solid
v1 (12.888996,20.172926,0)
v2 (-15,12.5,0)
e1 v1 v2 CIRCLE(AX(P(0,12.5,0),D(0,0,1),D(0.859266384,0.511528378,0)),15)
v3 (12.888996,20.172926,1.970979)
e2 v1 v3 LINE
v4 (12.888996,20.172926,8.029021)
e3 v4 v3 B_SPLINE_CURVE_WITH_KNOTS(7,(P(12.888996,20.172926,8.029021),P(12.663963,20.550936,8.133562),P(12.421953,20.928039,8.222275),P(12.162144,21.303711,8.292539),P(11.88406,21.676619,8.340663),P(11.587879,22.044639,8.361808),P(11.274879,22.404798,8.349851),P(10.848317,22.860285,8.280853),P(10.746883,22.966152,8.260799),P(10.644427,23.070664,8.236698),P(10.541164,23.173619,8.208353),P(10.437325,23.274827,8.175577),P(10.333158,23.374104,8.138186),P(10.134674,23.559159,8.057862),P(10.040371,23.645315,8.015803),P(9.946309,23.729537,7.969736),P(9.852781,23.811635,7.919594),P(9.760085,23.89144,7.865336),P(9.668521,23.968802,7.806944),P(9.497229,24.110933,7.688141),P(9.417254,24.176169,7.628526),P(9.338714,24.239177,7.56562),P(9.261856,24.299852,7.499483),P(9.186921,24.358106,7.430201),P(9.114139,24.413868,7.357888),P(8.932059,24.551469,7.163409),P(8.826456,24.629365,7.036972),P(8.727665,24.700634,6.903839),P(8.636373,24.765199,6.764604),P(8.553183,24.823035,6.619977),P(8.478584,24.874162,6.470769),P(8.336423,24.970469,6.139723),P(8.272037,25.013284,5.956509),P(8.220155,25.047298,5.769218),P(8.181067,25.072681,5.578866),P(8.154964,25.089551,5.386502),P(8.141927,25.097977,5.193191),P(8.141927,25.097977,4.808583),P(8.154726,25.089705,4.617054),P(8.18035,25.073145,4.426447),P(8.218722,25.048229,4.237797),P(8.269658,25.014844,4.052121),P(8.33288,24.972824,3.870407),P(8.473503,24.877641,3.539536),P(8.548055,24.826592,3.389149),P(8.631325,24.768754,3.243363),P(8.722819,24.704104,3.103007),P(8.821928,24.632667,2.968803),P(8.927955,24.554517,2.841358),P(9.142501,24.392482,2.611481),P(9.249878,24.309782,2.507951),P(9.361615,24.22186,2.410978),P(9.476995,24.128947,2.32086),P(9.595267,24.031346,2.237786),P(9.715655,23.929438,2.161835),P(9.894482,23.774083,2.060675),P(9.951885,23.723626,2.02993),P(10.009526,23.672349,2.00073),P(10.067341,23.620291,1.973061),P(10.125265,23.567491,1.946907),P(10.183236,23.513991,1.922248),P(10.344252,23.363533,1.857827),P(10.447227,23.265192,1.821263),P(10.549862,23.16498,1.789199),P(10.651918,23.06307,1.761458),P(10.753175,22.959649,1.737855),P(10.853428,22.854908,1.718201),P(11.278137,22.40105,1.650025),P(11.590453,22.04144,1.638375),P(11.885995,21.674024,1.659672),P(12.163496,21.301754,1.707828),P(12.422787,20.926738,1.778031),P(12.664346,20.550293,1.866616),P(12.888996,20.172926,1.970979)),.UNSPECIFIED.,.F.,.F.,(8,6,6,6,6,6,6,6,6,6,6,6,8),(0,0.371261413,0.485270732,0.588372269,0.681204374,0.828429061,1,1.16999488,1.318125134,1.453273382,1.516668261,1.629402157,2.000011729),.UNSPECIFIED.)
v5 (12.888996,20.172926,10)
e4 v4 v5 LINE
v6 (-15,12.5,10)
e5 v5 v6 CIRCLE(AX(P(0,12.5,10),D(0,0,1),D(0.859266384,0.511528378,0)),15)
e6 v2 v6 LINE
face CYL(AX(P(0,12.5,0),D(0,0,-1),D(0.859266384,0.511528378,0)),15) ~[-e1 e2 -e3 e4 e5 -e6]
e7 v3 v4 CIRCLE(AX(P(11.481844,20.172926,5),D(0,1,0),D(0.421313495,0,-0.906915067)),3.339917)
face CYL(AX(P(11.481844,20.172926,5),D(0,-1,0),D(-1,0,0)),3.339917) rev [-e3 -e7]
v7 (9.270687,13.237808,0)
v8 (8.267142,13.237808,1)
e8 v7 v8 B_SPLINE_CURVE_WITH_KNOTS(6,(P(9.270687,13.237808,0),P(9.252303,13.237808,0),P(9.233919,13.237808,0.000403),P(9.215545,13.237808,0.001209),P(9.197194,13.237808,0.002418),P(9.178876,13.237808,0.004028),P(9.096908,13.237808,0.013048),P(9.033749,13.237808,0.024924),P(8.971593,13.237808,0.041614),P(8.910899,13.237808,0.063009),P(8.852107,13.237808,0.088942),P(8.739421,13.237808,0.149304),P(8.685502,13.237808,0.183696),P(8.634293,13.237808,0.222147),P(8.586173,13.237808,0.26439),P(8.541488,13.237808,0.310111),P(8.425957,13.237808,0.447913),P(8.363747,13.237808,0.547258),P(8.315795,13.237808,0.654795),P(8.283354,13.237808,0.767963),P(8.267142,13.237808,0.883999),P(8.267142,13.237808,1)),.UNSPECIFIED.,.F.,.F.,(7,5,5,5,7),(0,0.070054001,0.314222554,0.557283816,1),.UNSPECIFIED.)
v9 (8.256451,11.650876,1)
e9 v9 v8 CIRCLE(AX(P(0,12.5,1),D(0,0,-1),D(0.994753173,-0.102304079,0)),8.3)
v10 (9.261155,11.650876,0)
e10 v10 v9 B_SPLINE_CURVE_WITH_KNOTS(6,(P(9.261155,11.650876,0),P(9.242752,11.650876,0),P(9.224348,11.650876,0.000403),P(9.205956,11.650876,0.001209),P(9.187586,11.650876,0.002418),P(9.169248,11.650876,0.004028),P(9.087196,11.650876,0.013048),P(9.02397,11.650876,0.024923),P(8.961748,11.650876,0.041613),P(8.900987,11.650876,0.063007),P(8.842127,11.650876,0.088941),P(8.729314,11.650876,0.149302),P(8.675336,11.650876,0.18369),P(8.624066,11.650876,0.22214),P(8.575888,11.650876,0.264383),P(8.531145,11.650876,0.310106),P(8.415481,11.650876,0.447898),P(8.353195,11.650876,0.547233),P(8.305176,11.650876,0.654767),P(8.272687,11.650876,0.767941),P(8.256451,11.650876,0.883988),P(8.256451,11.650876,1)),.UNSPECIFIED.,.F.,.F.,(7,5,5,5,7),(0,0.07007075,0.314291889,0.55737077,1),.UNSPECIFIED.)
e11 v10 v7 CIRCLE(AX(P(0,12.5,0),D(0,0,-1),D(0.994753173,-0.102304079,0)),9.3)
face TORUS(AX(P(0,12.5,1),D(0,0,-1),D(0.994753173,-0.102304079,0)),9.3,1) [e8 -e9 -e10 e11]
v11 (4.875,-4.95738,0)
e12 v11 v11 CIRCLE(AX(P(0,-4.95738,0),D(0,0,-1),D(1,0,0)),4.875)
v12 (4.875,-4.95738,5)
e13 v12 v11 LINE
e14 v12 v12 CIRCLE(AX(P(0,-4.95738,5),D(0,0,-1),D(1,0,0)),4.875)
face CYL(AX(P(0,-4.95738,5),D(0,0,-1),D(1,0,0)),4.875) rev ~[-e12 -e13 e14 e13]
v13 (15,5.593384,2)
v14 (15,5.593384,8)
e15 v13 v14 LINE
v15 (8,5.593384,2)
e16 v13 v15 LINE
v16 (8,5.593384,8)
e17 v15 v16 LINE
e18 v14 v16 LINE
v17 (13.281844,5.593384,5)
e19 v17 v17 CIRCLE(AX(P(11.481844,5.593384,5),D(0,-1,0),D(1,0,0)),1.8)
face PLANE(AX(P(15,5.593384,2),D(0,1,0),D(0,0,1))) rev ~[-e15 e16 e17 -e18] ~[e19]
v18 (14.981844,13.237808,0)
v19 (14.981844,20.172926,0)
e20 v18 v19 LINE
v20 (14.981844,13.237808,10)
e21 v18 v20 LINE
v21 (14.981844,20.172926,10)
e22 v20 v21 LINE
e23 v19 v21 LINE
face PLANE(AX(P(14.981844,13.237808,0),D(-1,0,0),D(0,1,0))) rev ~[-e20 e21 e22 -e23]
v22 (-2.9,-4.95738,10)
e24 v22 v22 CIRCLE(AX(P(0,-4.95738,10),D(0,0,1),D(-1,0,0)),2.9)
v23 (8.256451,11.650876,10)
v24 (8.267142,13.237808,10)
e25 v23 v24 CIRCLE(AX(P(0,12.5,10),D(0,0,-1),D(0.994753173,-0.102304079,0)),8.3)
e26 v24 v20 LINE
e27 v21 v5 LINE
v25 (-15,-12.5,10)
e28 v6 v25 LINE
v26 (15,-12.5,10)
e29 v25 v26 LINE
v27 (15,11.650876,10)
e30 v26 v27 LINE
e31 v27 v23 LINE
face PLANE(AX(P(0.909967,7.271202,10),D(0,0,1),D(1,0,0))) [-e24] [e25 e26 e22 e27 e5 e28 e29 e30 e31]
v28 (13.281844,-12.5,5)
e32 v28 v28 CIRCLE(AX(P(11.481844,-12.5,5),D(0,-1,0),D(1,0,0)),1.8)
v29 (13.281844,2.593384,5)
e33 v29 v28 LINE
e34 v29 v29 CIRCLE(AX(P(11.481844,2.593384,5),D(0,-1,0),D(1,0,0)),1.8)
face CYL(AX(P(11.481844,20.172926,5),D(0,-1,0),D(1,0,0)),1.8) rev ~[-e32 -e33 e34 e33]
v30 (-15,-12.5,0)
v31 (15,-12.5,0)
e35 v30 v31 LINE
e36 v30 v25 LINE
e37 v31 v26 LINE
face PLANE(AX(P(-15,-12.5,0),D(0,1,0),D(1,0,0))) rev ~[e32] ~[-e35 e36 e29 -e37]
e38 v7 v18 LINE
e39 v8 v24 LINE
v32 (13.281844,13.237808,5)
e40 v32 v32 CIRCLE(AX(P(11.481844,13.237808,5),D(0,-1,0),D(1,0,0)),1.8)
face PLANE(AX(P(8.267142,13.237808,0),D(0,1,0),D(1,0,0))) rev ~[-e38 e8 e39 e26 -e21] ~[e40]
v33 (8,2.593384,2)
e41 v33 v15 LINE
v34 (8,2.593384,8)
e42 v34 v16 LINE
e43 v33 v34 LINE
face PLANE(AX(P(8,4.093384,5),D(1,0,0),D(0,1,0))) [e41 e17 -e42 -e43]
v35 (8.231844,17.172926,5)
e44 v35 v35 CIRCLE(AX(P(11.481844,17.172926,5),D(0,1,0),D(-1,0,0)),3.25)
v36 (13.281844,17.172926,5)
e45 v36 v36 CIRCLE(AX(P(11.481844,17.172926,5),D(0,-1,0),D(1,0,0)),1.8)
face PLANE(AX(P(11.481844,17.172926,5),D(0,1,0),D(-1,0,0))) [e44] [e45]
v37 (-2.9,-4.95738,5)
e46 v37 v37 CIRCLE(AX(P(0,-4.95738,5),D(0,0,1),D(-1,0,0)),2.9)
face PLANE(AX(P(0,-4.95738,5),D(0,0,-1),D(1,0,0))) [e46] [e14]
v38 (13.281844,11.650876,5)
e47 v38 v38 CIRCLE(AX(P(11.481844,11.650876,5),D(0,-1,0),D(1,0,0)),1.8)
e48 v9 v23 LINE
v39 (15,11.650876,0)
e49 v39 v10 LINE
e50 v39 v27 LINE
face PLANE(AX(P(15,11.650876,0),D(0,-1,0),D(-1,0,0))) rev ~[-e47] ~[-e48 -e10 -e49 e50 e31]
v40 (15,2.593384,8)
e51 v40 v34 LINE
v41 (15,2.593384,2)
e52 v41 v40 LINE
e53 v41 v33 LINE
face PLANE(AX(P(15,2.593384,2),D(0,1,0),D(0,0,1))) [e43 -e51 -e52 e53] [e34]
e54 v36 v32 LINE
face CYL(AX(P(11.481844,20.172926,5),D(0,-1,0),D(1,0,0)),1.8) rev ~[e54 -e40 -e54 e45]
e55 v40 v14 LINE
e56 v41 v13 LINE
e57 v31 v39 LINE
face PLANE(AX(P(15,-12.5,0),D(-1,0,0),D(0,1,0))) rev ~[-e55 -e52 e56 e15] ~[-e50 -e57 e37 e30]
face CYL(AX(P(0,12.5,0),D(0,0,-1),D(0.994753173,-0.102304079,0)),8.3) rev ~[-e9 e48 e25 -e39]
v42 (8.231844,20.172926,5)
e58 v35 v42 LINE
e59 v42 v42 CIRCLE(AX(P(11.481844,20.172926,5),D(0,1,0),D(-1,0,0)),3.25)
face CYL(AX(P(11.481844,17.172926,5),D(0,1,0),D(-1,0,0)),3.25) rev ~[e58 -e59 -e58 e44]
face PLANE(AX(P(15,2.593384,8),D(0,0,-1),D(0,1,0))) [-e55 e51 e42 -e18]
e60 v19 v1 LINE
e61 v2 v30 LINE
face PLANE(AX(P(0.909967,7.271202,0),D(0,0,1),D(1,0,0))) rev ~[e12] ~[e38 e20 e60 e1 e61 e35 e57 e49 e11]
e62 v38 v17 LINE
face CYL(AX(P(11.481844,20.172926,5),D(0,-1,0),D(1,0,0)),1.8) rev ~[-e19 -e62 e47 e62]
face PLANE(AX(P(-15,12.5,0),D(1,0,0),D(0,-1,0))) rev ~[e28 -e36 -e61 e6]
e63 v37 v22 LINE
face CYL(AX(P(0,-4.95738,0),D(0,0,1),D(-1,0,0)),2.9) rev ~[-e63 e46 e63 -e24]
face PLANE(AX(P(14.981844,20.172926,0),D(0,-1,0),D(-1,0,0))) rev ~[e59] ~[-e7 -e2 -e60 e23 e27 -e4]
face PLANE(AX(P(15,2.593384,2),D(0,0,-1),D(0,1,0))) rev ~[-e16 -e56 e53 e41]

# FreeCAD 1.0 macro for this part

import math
import FreeCAD as App
import Part
import Sketcher
Q = App.Units.Quantity


def edges_at(feature, points):
    """Names of the edges that pass closest to the given points."""
    edges = feature.Shape.Edges
    near = lambda p: min(range(len(edges)), key=lambda i: edges[i].distToShape(Part.Vertex(*p))[0])
    return sorted({f"Edge{near(p) + 1}" for p in points})

doc = App.newDocument("Part")
body = doc.addObject("PartDesign::Body", "Body")

# Sketch on XY plane
sketch1 = body.newObject("Sketcher::SketchObject", "Sketch")
sketch1.AttachmentSupport = (doc.getObject("XY_Plane"), [""])
sketch1.MapMode = "FlatFace"
sketch1.addGeometry(Part.LineSegment(App.Vector(-15, 12.5, 0), App.Vector(-15, -12.5, 0)), False)
sketch1.addGeometry(Part.LineSegment(App.Vector(-15, -12.5, 0), App.Vector(15, -12.5, 0)), False)
sketch1.addGeometry(Part.LineSegment(App.Vector(15, -12.5, 0), App.Vector(15, 11.7, 0)), False)
sketch1.addGeometry(Part.LineSegment(App.Vector(15, 11.7, 0), App.Vector(8.3, 11.7, 0)), False)
sketch1.addGeometry(Part.ArcOfCircle(Part.Circle(App.Vector(0, 12.5, 0), App.Vector(0, 0, 1), 8.3), math.radians(5), math.radians(354)), False)
sketch1.addGeometry(Part.LineSegment(App.Vector(8.3, 13.2, 0), App.Vector(15, 13.2, 0)), False)
sketch1.addGeometry(Part.LineSegment(App.Vector(15, 13.2, 0), App.Vector(15, 20.2, 0)), False)
sketch1.addGeometry(Part.LineSegment(App.Vector(15, 20.2, 0), App.Vector(12.9, 20.2, 0)), False)
sketch1.addGeometry(Part.ArcOfCircle(Part.Circle(App.Vector(0, 12.5, 0), App.Vector(0, 0, 1), 15), math.radians(31), math.radians(180)), False)
sketch1.addConstraint(Sketcher.Constraint("Coincident", 0, 2, 1, 1))
sketch1.addConstraint(Sketcher.Constraint("Coincident", 1, 2, 2, 1))
sketch1.addConstraint(Sketcher.Constraint("Coincident", 2, 2, 3, 1))
sketch1.addConstraint(Sketcher.Constraint("Coincident", 3, 2, 4, 2))
sketch1.addConstraint(Sketcher.Constraint("Coincident", 4, 1, 5, 1))
sketch1.addConstraint(Sketcher.Constraint("Coincident", 5, 2, 6, 1))
sketch1.addConstraint(Sketcher.Constraint("Coincident", 6, 2, 7, 1))
sketch1.addConstraint(Sketcher.Constraint("Coincident", 7, 2, 8, 1))
sketch1.addConstraint(Sketcher.Constraint("Tangent", 8, 2, 0, 1))
sketch1.addConstraint(Sketcher.Constraint("Vertical", 0))
sketch1.addConstraint(Sketcher.Constraint("Horizontal", 1))
sketch1.addConstraint(Sketcher.Constraint("Vertical", 2))
sketch1.addConstraint(Sketcher.Constraint("Horizontal", 3))
sketch1.addConstraint(Sketcher.Constraint("Horizontal", 5))
sketch1.addConstraint(Sketcher.Constraint("Vertical", 6))
sketch1.addConstraint(Sketcher.Constraint("Horizontal", 7))
sketch1.addConstraint(Sketcher.Constraint("Coincident", 8, 3, 4, 3))
sketch1.addConstraint(Sketcher.Constraint("Symmetric", 1, 2, 8, 2, -1, 1))
sketch1.addConstraint(Sketcher.Constraint("PointOnObject", 4, 3, -2))
sketch1.addConstraint(Sketcher.Constraint("Radius", 8, Q("15 mm")))
sketch1.addConstraint(Sketcher.Constraint("Radius", 4, Q("8.3 mm")))
sketch1.addConstraint(Sketcher.Constraint("DistanceY", 0, 2, 0, 1, Q("25 mm")))
sketch1.addConstraint(Sketcher.Constraint("DistanceX", 5, 1, 5, 2, Q("6.714702 mm")))
sketch1.addConstraint(Sketcher.Constraint("DistanceX", 3, 2, 3, 1, Q("6.743549 mm")))
sketch1.addConstraint(Sketcher.Constraint("DistanceX", 7, 2, 7, 1, Q("2.092848 mm")))
sketch1.addConstraint(Sketcher.Constraint("DistanceY", 6, 1, 6, 2, Q("6.935118 mm")))
pad1 = body.newObject("PartDesign::Pad", "Pad")
pad1.Profile = sketch1
pad1.Length = 10

# Sketch on XY plane
sketch2 = body.newObject("Sketcher::SketchObject", "Sketch001")
sketch2.AttachmentSupport = (doc.getObject("XY_Plane"), [""])
sketch2.MapMode = "FlatFace"
sketch2.addGeometry(Part.Circle(App.Vector(0, -5, 0), App.Vector(0, 0, 1), 2.9), False)
sketch2.addConstraint(Sketcher.Constraint("PointOnObject", 0, 3, -2))
sketch2.addConstraint(Sketcher.Constraint("Diameter", 0, Q("5.8 mm")))
sketch2.addConstraint(Sketcher.Constraint("DistanceY", 0, 3, -1, 1, Q("4.95738 mm")))
doc.recompute()
hole = body.newObject("PartDesign::Hole", "Hole")
hole.Profile = sketch2
hole.ThreadType = "None"
hole.Diameter = 5.8
hole.DepthType = "ThroughAll"
hole.HoleCutType = "Counterbore"
hole.HoleCutDiameter = 9.75
hole.HoleCutDepth = 5
hole.Reversed = True

# Sketch on XZ plane
sketch3 = body.newObject("Sketcher::SketchObject", "Sketch002")
sketch3.AttachmentSupport = (doc.getObject("XZ_Plane"), [""])
sketch3.MapMode = "FlatFace"
sketch3.AttachmentOffset = App.Placement(App.Vector(0, 0, -20.172926), App.Rotation())
sketch3.addGeometry(Part.Circle(App.Vector(11.5, 5, 0), App.Vector(0, 0, 1), 3.3), False)
sketch3.addConstraint(Sketcher.Constraint("DistanceY", -1, 1, 0, 3, Q("5 mm")))
sketch3.addConstraint(Sketcher.Constraint("Diameter", 0, Q("6.679834 mm")))
sketch3.addConstraint(Sketcher.Constraint("DistanceX", -1, 1, 0, 3, Q("11.481844 mm")))
pocket1 = body.newObject("PartDesign::Pocket", "Pocket")
pocket1.Profile = sketch3
pocket1.Length = 25

# Sketch on XZ plane
sketch4 = body.newObject("Sketcher::SketchObject", "Sketch003")
sketch4.AttachmentSupport = (doc.getObject("XZ_Plane"), [""])
sketch4.MapMode = "FlatFace"
sketch4.AttachmentOffset = App.Placement(App.Vector(0, 0, -20.172926), App.Rotation())
sketch4.addGeometry(Part.Circle(App.Vector(11.5, 5, 0), App.Vector(0, 0, 1), 1.8), False)
sketch4.addConstraint(Sketcher.Constraint("Diameter", 0, Q("3.6 mm")))
sketch4.addConstraint(Sketcher.Constraint("DistanceY", -1, 1, 0, 3, Q("5 mm")))
sketch4.addConstraint(Sketcher.Constraint("DistanceX", -1, 1, 0, 3, Q("11.481844 mm")))
doc.recompute()
hole2 = body.newObject("PartDesign::Hole", "Hole001")
hole2.Profile = sketch4
hole2.ThreadType = "None"
hole2.Diameter = 3.6
hole2.DepthType = "ThroughAll"
hole2.HoleCutType = "Counterbore"
hole2.HoleCutDiameter = 6.5
hole2.HoleCutDepth = 3
hole2.Reversed = True

# Sketch on YZ plane
sketch5 = body.newObject("Sketcher::SketchObject", "Sketch004")
sketch5.AttachmentSupport = (doc.getObject("YZ_Plane"), [""])
sketch5.MapMode = "FlatFace"
sketch5.AttachmentOffset = App.Placement(App.Vector(0, 0, 15), App.Rotation())
sketch5.addGeometry(Part.LineSegment(App.Vector(2.6, 8, 0), App.Vector(2.6, 2, 0)), False)
sketch5.addGeometry(Part.LineSegment(App.Vector(2.6, 2, 0), App.Vector(5.6, 2, 0)), False)
sketch5.addGeometry(Part.LineSegment(App.Vector(5.6, 2, 0), App.Vector(5.6, 8, 0)), False)
sketch5.addGeometry(Part.LineSegment(App.Vector(5.6, 8, 0), App.Vector(2.6, 8, 0)), False)
sketch5.addConstraint(Sketcher.Constraint("Coincident", 0, 2, 1, 1))
sketch5.addConstraint(Sketcher.Constraint("Coincident", 1, 2, 2, 1))
sketch5.addConstraint(Sketcher.Constraint("Coincident", 2, 2, 3, 1))
sketch5.addConstraint(Sketcher.Constraint("Coincident", 3, 2, 0, 1))
sketch5.addConstraint(Sketcher.Constraint("Vertical", 0))
sketch5.addConstraint(Sketcher.Constraint("Horizontal", 1))
sketch5.addConstraint(Sketcher.Constraint("Vertical", 2))
sketch5.addConstraint(Sketcher.Constraint("Horizontal", 3))
sketch5.addConstraint(Sketcher.Constraint("DistanceX", 1, 1, 1, 2, Q("3 mm")))
sketch5.addConstraint(Sketcher.Constraint("DistanceY", 0, 2, 0, 1, Q("6 mm")))
sketch5.addConstraint(Sketcher.Constraint("DistanceY", -1, 1, 0, 2, Q("2 mm")))
sketch5.addConstraint(Sketcher.Constraint("DistanceX", -1, 1, 0, 2, Q("2.593384 mm")))
pocket2 = body.newObject("PartDesign::Pocket", "Pocket001")
pocket2.Profile = sketch5
pocket2.Length = 7
doc.recompute()

fillet = body.newObject("PartDesign::Fillet", "Fillet")
fillet.Base = (pocket2, edges_at(pocket2, [(-8.3, 12.556, 0)]))
fillet.Radius = 1

doc.recompute()
